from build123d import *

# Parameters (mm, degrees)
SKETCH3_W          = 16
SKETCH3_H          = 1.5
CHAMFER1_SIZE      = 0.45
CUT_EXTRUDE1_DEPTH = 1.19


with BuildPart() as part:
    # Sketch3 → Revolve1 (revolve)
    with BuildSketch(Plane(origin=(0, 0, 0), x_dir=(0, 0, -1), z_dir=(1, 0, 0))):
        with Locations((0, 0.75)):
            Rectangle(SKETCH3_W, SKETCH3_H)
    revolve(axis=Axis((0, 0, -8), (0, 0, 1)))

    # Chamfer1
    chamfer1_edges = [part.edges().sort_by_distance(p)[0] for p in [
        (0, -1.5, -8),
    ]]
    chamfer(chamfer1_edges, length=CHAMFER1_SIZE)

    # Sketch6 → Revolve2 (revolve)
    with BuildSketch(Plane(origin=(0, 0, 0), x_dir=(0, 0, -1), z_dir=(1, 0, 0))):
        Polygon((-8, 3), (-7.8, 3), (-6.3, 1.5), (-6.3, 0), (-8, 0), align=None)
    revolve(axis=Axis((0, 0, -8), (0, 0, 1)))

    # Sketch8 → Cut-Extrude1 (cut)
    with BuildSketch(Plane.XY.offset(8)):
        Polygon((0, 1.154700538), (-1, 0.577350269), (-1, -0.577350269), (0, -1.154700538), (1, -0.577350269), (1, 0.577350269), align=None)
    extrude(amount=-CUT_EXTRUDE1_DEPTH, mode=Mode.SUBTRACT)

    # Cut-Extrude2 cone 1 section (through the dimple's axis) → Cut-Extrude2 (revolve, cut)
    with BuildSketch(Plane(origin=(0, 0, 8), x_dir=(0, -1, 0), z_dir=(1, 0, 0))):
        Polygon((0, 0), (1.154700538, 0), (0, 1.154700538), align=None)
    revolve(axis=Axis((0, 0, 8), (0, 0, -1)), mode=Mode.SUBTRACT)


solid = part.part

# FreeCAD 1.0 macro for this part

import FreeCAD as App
import Part
import Sketcher

V = App.Vector
Q = App.Units.Quantity


def edges_at(feature, points):
    """Names of the edges that pass closest to the given points."""
    edges = feature.Shape.Edges
    near = lambda p: min(range(len(edges)), key=lambda i: edges[i].distToShape(Part.Vertex(*p))[0])
    return sorted({f"Edge{near(p) + 1}" for p in points})

doc = App.newDocument("Part")
body = doc.addObject("PartDesign::Body", "Body")

sketch1 = doc.addObject("Sketcher::SketchObject", "Sketch")
body.addObject(sketch1)
sketch1.AttachmentSupport = (doc.YZ_Plane, [""])
sketch1.MapMode = "FlatFace"
sketch1.addGeometry([
    Part.LineSegment(V(1.5, 8, 0), V(0, 8, 0)),
    Part.LineSegment(V(0, 8, 0), V(0, -8, 0)),
    Part.LineSegment(V(0, -8, 0), V(1.5, -8, 0)),
    Part.LineSegment(V(1.5, -8, 0), V(1.5, 8, 0)),
], False)
sketch1.addConstraint([
    Sketcher.Constraint("Coincident", 0, 2, 1, 1),
    Sketcher.Constraint("Coincident", 1, 2, 2, 1),
    Sketcher.Constraint("Coincident", 2, 2, 3, 1),
    Sketcher.Constraint("Coincident", 3, 2, 0, 1),
    Sketcher.Constraint("Horizontal", 0),
    Sketcher.Constraint("Vertical", 1),
    Sketcher.Constraint("Horizontal", 2),
    Sketcher.Constraint("Vertical", 3),
    Sketcher.Constraint("Symmetric", 0, 2, 1, 2, -1, 1),
    Sketcher.Constraint("DistanceY", 1, 2, 1, 1, 16.0),
    Sketcher.Constraint("DistanceX", 0, 2, 0, 1, 1.5),
])
revolution = doc.addObject("PartDesign::Revolution", "Revolution")
body.addObject(revolution)
revolution.Profile = sketch1
revolution.ReferenceAxis = (sketch1, ["V_Axis"])
revolution.Angle = 360
doc.recompute()

chamfer = doc.addObject("PartDesign::Chamfer", "Chamfer")
body.addObject(chamfer)
chamfer.Base = (revolution, edges_at(revolution, [(0, -1.5, -8)]))
chamfer.Size = 0.45

sketch2 = doc.addObject("Sketcher::SketchObject", "Sketch001")
body.addObject(sketch2)
sketch2.AttachmentSupport = (doc.YZ_Plane, [""])
sketch2.MapMode = "FlatFace"
sketch2.addGeometry([
    Part.LineSegment(V(3, 7.8, 0), V(3, 8, 0)),
    Part.LineSegment(V(3, 8, 0), V(0, 8, 0)),
    Part.LineSegment(V(0, 8, 0), V(0, 6.3, 0)),
    Part.LineSegment(V(0, 6.3, 0), V(1.5, 6.3, 0)),
    Part.LineSegment(V(1.5, 6.3, 0), V(3, 7.8, 0)),
], False)
sketch2.addConstraint([
    Sketcher.Constraint("Coincident", 0, 2, 1, 1),
    Sketcher.Constraint("Coincident", 1, 2, 2, 1),
    Sketcher.Constraint("Coincident", 2, 2, 3, 1),
    Sketcher.Constraint("Coincident", 3, 2, 4, 1),
    Sketcher.Constraint("Coincident", 4, 2, 0, 1),
    Sketcher.Constraint("Vertical", 0),
    Sketcher.Constraint("Horizontal", 1),
    Sketcher.Constraint("Vertical", 2),
    Sketcher.Constraint("Horizontal", 3),
    Sketcher.Constraint("PointOnObject", 1, 2, -2),
    Sketcher.Constraint("DistanceX", 1, 2, 1, 1, 3.0),
    Sketcher.Constraint("Angle", 4, Q("45 deg")),
    Sketcher.Constraint("DistanceX", 3, 1, 3, 2, 1.5),
    Sketcher.Constraint("DistanceY", 0, 1, 0, 2, 0.2),
    Sketcher.Constraint("DistanceY", -1, 1, 0, 2, 8.0),
])
revolution2 = doc.addObject("PartDesign::Revolution", "Revolution001")
body.addObject(revolution2)
revolution2.Profile = sketch2
revolution2.ReferenceAxis = (sketch2, ["V_Axis"])
revolution2.Angle = 360

sketch3 = doc.addObject("Sketcher::SketchObject", "Sketch002")
body.addObject(sketch3)
sketch3.AttachmentSupport = (doc.XY_Plane, [""])
sketch3.MapMode = "FlatFace"
sketch3.AttachmentOffset = App.Placement(V(0, 0, 8), App.Rotation())
sketch3.addGeometry([
    Part.LineSegment(V(0, 1.154701, 0), V(-1, 0.57735, 0)),
    Part.LineSegment(V(-1, 0.57735, 0), V(-1, -0.57735, 0)),
    Part.LineSegment(V(-1, -0.57735, 0), V(0, -1.154701, 0)),
    Part.LineSegment(V(0, -1.154701, 0), V(1, -0.57735, 0)),
    Part.LineSegment(V(1, -0.57735, 0), V(1, 0.57735, 0)),
    Part.LineSegment(V(1, 0.57735, 0), V(0, 1.154701, 0)),
], False)
sketch3.addConstraint([
    Sketcher.Constraint("Coincident", 0, 2, 1, 1),
    Sketcher.Constraint("Coincident", 1, 2, 2, 1),
    Sketcher.Constraint("Coincident", 2, 2, 3, 1),
    Sketcher.Constraint("Coincident", 3, 2, 4, 1),
    Sketcher.Constraint("Coincident", 4, 2, 5, 1),
    Sketcher.Constraint("Coincident", 5, 2, 0, 1),
    Sketcher.Constraint("Vertical", 1),
    Sketcher.Constraint("Vertical", 4),
    Sketcher.Constraint("Symmetric", 0, 2, 3, 2, -1, 1),
    Sketcher.Constraint("Symmetric", 2, 2, 5, 2, -1, 1),
    Sketcher.Constraint("PointOnObject", 2, 2, -2),
    Sketcher.Constraint("Parallel", 2, 5),
    Sketcher.Constraint("Horizontal", 1, 2, 3, 2),
    Sketcher.Constraint("Angle", 0, Q("-150 deg")),
    Sketcher.Constraint("DistanceX", 0, 2, -1, 1, 1.0),
    Sketcher.Constraint("DistanceY", 1, 2, 1, 1, 1.154701),
])
pocket1 = doc.addObject("PartDesign::Pocket", "Pocket")
body.addObject(pocket1)
pocket1.Profile = sketch3
pocket1.Length = 1.19

sketch4 = doc.addObject("Sketcher::SketchObject", "Sketch003")
body.addObject(sketch4)
sketch4.AttachmentSupport = (doc.YZ_Plane, [""])
sketch4.MapMode = "FlatFace"
sketch4.addGeometry([
    Part.LineSegment(V(0, 8, 0), V(-1.154701, 8, 0)),
    Part.LineSegment(V(-1.154701, 8, 0), V(0, 6.845299, 0)),
    Part.LineSegment(V(0, 6.845299, 0), V(0, 8, 0)),
], False)
sketch4.addConstraint([
    Sketcher.Constraint("Coincident", 0, 2, 1, 1),
    Sketcher.Constraint("Coincident", 1, 2, 2, 1),
    Sketcher.Constraint("Coincident", 2, 2, 0, 1),
    Sketcher.Constraint("Horizontal", 0),
    Sketcher.Constraint("Vertical", 2),
    Sketcher.Constraint("PointOnObject", 1, 2, -2),
    Sketcher.Constraint("Equal", 0, 2),
    Sketcher.Constraint("DistanceY", -1, 1, 0, 2, 8.0),
    Sketcher.Constraint("DistanceX", 0, 2, 0, 1, 1.154701),
])
groove = doc.addObject("PartDesign::Groove", "Groove")
body.addObject(groove)
groove.Profile = sketch4
groove.ReferenceAxis = (sketch4, ["V_Axis"])
groove.Angle = 360

doc.recompute()
